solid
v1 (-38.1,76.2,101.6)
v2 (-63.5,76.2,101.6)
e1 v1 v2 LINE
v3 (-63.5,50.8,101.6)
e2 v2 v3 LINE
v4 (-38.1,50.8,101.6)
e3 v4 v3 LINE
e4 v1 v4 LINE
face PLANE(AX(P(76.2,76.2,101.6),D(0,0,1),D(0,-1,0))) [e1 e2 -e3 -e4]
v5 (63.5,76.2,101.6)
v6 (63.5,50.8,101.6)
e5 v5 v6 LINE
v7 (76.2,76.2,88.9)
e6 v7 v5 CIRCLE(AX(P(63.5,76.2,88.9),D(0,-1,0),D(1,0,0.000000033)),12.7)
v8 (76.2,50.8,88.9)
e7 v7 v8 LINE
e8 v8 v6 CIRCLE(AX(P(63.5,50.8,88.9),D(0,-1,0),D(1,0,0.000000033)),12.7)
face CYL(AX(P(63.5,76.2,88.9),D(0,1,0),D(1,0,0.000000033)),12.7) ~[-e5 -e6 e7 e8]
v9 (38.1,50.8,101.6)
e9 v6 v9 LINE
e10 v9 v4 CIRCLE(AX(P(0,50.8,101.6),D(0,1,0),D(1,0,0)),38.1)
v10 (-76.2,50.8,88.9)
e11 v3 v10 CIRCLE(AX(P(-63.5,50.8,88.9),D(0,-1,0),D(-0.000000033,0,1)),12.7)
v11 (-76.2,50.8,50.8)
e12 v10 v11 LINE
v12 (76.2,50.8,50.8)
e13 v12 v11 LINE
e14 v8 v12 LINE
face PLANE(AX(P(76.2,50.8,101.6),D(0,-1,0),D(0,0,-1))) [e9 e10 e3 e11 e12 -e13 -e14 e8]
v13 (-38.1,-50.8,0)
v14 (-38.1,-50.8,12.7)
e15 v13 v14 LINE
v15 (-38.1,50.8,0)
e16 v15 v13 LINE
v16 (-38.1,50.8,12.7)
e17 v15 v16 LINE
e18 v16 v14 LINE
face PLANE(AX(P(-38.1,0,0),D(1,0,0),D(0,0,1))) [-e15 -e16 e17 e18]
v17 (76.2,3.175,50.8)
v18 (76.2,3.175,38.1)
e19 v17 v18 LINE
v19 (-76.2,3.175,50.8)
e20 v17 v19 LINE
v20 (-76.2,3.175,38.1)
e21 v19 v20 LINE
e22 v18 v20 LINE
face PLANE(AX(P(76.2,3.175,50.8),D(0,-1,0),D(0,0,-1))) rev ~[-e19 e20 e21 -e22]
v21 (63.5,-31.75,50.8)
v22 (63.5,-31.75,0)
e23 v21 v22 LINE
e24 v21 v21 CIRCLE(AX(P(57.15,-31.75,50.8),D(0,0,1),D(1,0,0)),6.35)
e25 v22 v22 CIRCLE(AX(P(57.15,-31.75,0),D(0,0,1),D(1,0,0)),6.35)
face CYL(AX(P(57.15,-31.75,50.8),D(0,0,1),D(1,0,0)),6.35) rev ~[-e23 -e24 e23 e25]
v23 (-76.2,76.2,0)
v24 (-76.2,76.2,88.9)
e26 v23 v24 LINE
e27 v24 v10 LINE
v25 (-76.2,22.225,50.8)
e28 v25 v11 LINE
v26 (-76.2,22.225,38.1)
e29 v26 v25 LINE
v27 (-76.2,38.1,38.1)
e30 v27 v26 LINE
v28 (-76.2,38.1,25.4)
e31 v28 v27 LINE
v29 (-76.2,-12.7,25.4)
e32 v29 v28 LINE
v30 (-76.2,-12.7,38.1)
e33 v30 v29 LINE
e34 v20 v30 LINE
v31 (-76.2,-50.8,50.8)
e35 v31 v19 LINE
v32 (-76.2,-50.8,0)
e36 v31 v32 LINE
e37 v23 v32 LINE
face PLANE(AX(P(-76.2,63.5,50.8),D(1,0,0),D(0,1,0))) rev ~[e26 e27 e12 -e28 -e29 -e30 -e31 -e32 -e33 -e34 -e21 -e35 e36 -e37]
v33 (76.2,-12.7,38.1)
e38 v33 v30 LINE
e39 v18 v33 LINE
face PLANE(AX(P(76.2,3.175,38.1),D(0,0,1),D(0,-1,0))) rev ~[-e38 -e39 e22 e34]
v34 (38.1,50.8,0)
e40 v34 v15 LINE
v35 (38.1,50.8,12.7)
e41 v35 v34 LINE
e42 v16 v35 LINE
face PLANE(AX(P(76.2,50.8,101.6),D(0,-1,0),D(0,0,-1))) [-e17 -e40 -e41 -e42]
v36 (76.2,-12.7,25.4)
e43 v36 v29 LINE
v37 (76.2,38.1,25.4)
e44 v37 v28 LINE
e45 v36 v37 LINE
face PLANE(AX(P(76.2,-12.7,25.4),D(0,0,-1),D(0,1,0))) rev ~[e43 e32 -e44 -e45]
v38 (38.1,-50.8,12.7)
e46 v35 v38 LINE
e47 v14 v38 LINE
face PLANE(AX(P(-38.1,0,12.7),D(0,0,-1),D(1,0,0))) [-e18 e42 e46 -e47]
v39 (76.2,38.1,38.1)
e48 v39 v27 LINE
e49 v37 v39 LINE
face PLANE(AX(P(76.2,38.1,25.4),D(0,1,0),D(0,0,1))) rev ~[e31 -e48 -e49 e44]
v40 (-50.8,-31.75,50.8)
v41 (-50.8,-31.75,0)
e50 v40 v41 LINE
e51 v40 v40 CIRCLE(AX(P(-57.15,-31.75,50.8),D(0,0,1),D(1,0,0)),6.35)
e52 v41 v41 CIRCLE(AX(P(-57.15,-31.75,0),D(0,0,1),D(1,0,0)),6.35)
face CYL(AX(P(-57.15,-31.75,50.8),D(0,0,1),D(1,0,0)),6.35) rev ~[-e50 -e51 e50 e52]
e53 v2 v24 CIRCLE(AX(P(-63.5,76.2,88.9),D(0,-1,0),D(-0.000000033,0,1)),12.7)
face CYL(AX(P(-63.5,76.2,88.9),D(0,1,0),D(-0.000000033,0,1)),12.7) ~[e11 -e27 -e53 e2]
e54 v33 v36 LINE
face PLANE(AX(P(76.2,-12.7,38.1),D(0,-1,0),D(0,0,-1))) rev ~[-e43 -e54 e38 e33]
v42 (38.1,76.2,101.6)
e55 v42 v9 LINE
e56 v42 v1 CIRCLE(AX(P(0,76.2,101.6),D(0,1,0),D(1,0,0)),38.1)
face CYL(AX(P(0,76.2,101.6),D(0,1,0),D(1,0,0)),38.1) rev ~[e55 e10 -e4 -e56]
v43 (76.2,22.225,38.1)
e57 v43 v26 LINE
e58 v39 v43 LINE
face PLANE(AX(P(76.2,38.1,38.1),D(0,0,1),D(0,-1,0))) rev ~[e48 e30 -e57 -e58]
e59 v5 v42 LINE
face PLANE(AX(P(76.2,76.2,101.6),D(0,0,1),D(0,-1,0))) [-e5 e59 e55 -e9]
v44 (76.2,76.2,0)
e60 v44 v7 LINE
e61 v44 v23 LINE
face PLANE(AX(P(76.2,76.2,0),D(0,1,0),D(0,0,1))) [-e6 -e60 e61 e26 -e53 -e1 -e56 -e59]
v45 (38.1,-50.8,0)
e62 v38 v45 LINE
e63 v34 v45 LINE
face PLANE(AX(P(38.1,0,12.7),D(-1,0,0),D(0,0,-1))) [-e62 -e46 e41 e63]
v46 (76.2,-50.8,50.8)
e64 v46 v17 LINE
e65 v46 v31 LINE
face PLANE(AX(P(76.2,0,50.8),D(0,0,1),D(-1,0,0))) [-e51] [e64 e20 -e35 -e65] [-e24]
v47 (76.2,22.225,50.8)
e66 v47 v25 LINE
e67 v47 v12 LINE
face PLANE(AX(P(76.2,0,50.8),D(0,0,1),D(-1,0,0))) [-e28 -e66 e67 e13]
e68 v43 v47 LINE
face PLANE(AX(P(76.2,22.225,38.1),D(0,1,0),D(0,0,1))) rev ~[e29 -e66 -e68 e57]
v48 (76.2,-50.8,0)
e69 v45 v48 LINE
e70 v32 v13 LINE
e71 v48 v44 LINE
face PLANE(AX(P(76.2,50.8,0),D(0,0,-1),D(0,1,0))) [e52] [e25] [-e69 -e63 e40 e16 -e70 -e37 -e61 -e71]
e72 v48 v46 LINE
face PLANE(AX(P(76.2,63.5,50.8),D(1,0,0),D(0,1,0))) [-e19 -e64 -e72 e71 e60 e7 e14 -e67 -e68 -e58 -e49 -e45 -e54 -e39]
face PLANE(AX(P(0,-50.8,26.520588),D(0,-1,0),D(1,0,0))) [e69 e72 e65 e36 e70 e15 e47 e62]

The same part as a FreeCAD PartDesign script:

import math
import FreeCAD as App
import Part
import Sketcher
from FreeCAD import Vector
Q = App.Units.Quantity

doc = App.newDocument("Part")
params = doc.addObject("Spreadsheet::Sheet", "Params")
for row, (alias, value) in enumerate([
    ("sketch1_width", "3 in"),
    ("sketch1_width2", "6 in"),
    ("sketch1_height", "2 in"),
    ("sketch1_height2", "0.5 in"),
    ("pad1_length", "4 in"),
    ("sketch2_diameter", "0.5 in"),
    ("pocket1_length", "2 in"),
    ("sketch3_width", "2 in"),
    ("sketch3_height", "0.5 in"),
    ("sketch3_width2", "0.75 in"),
    ("pocket2_length", "6 in"),
    ("sketch4_width", "1 in"),
    ("sketch4_height", "4 in"),
    ("pad2_length", "6 in"),
    ("sketch5_radius", "1.5 in"),
    ("pocket3_length", "1 in"),
    ("sketch6_radius", "0.5 in"),
    ("pocket4_length", "1 in"),
    ("sketch7_radius", "0.5 in"),
    ("pocket5_length", "1 in"),
], start=1):
    params.set(f"A{row}", alias)
    params.set(f"B{row}", "=" + value)
    params.setAlias(f"B{row}", alias)

body = doc.addObject("PartDesign::Body", "Body")

# Sketch on XZ plane
sketch1 = body.newObject("Sketcher::SketchObject", "Sketch")
sketch1.AttachmentSupport = (doc.getObject("XZ_Plane"), [""])
sketch1.MapMode = "FlatFace"
sketch1.addGeometry([
    Part.LineSegment(Vector(-76.2, 50.8, 0), Vector(-76.2, 0, 0)),  # 0
    Part.LineSegment(Vector(-76.2, 0, 0), Vector(-38.1, 0, 0)),  # 1
    Part.LineSegment(Vector(-38.1, 0, 0), Vector(-38.1, 12.7, 0)),  # 2
    Part.LineSegment(Vector(-38.1, 12.7, 0), Vector(38.1, 12.7, 0)),  # 3
    Part.LineSegment(Vector(38.1, 12.7, 0), Vector(38.1, 0, 0)),  # 4
    Part.LineSegment(Vector(38.1, 0, 0), Vector(76.2, 0, 0)),  # 5
    Part.LineSegment(Vector(76.2, 0, 0), Vector(76.2, 50.8, 0)),  # 6
    Part.LineSegment(Vector(76.2, 50.8, 0), Vector(-76.2, 50.8, 0)),  # 7
], False)
sketch1.addConstraint([
    Sketcher.Constraint("Coincident", 0, 2, 1, 1),
    Sketcher.Constraint("Coincident", 1, 2, 2, 1),
    Sketcher.Constraint("Coincident", 2, 2, 3, 1),
    Sketcher.Constraint("Coincident", 3, 2, 4, 1),
    Sketcher.Constraint("Coincident", 4, 2, 5, 1),
    Sketcher.Constraint("Coincident", 5, 2, 6, 1),
    Sketcher.Constraint("Coincident", 6, 2, 7, 1),
    Sketcher.Constraint("Coincident", 7, 2, 0, 1),
    Sketcher.Constraint("Vertical", 0),
    Sketcher.Constraint("Horizontal", 1),
    Sketcher.Constraint("Vertical", 2),
    Sketcher.Constraint("Horizontal", 3),
    Sketcher.Constraint("Vertical", 4),
    Sketcher.Constraint("Horizontal", 5),
    Sketcher.Constraint("Vertical", 6),
    Sketcher.Constraint("Horizontal", 7),
    Sketcher.Constraint("Symmetric", 1, 2, 4, 2, -1, 1),
    Sketcher.Constraint("Symmetric", 0, 2, 5, 2, -2),
    Sketcher.Constraint("DistanceX", 3, 1, 3, 2, Q("3 in")),
    Sketcher.Constraint("DistanceX", 7, 2, 7, 1, Q("6 in")),
    Sketcher.Constraint("DistanceY", 0, 2, 0, 1, Q("2 in")),
    Sketcher.Constraint("DistanceY", 2, 1, 2, 2, Q("0.5 in")),
])
sketch1.setExpression("Constraints[18]", "Params.sketch1_width")
sketch1.setExpression("Constraints[19]", "Params.sketch1_width2")
sketch1.setExpression("Constraints[20]", "Params.sketch1_height")
sketch1.setExpression("Constraints[21]", "Params.sketch1_height2")
pad1 = body.newObject("PartDesign::Pad", "Pad")
pad1.Profile = sketch1
pad1.setExpression("Length", "Params.pad1_length")
pad1.Midplane = True

# Sketch on XY plane
sketch2 = body.newObject("Sketcher::SketchObject", "Sketch001")
sketch2.AttachmentSupport = (doc.getObject("XY_Plane"), [""])
sketch2.MapMode = "FlatFace"
sketch2.AttachmentOffset = App.Placement(Vector(0, 0, 2 * 25.4), App.Rotation())
sketch2.addGeometry([
    Part.Circle(Vector(-57.15, -31.75, 0), Vector(0, 0, 1), 6.35),
    Part.Circle(Vector(57.15, -31.75, 0), Vector(0, 0, 1), 6.35),
], False)
sketch2.addConstraint([
    Sketcher.Constraint("Equal", 0, 1),
    Sketcher.Constraint("Symmetric", 0, 3, 1, 3, -2),
    Sketcher.Constraint("Diameter", 0, Q("0.5 in")),
    Sketcher.Constraint("DistanceX", 0, 3, 1, 3, Q("4.5 in")),
    Sketcher.Constraint("DistanceY", 0, 3, -1, 1, Q("1.25 in")),
])
sketch2.setExpression("Constraints[2]", "Params.sketch2_diameter")
pocket1 = body.newObject("PartDesign::Pocket", "Pocket")
pocket1.Profile = sketch2
pocket1.setExpression("Length", "Params.pocket1_length")

# Sketch on YZ plane
sketch3 = body.newObject("Sketcher::SketchObject", "Sketch002")
sketch3.AttachmentSupport = (doc.getObject("YZ_Plane"), [""])
sketch3.MapMode = "FlatFace"
sketch3.AttachmentOffset = App.Placement(Vector(0, 0, 3 * 25.4), App.Rotation())
sketch3.addGeometry([
    Part.LineSegment(Vector(-12.7, 38.1, 0), Vector(-12.7, 25.4, 0)),  # 0
    Part.LineSegment(Vector(-12.7, 25.4, 0), Vector(38.1, 25.4, 0)),  # 1
    Part.LineSegment(Vector(38.1, 25.4, 0), Vector(38.1, 38.1, 0)),  # 2
    Part.LineSegment(Vector(38.1, 38.1, 0), Vector(22.225, 38.1, 0)),  # 3
    Part.LineSegment(Vector(22.225, 38.1, 0), Vector(22.225, 50.8, 0)),  # 4
    Part.LineSegment(Vector(22.225, 50.8, 0), Vector(3.175, 50.8, 0)),  # 5
    Part.LineSegment(Vector(3.175, 50.8, 0), Vector(3.175, 38.1, 0)),  # 6
    Part.LineSegment(Vector(3.175, 38.1, 0), Vector(-12.7, 38.1, 0)),  # 7
], False)
sketch3.addConstraint([
    Sketcher.Constraint("Coincident", 0, 2, 1, 1),
    Sketcher.Constraint("Coincident", 1, 2, 2, 1),
    Sketcher.Constraint("Coincident", 2, 2, 3, 1),
    Sketcher.Constraint("Coincident", 3, 2, 4, 1),
    Sketcher.Constraint("Coincident", 4, 2, 5, 1),
    Sketcher.Constraint("Coincident", 5, 2, 6, 1),
    Sketcher.Constraint("Coincident", 6, 2, 7, 1),
    Sketcher.Constraint("Coincident", 7, 2, 0, 1),
    Sketcher.Constraint("Vertical", 0),
    Sketcher.Constraint("Horizontal", 1),
    Sketcher.Constraint("Vertical", 2),
    Sketcher.Constraint("Horizontal", 3),
    Sketcher.Constraint("Vertical", 4),
    Sketcher.Constraint("Horizontal", 5),
    Sketcher.Constraint("Vertical", 6),
    Sketcher.Constraint("Horizontal", 7),
    Sketcher.Constraint("Horizontal", 3, 2, 6, 2),
    Sketcher.Constraint("Equal", 3, 7),
    Sketcher.Constraint("Equal", 2, 4),
    Sketcher.Constraint("DistanceX", 1, 1, 1, 2, Q("2 in")),
    Sketcher.Constraint("DistanceY", 0, 2, 0, 1, Q("0.5 in")),
    Sketcher.Constraint("DistanceY", -1, 1, 0, 2, Q("1 in")),
    Sketcher.Constraint("DistanceX", 5, 2, 5, 1, Q("0.75 in")),
    Sketcher.Constraint("DistanceX", 0, 2, -1, 1, Q("0.5 in")),
])
sketch3.setExpression("Constraints[19]", "Params.sketch3_width")
sketch3.setExpression("Constraints[20]", "Params.sketch3_height")
sketch3.setExpression("Constraints[22]", "Params.sketch3_width2")
pocket2 = body.newObject("PartDesign::Pocket", "Pocket001")
pocket2.Profile = sketch3
pocket2.setExpression("Length", "Params.pocket2_length")

# Sketch on YZ plane
sketch4 = body.newObject("Sketcher::SketchObject", "Sketch003")
sketch4.AttachmentSupport = (doc.getObject("YZ_Plane"), [""])
sketch4.MapMode = "FlatFace"
sketch4.AttachmentOffset = App.Placement(Vector(0, 0, 3 * 25.4), App.Rotation())
sketch4.addGeometry([
    Part.LineSegment(Vector(50.8, 101.6, 0), Vector(50.8, 0, 0)),
    Part.LineSegment(Vector(50.8, 0, 0), Vector(76.2, 0, 0)),
    Part.LineSegment(Vector(76.2, 0, 0), Vector(76.2, 101.6, 0)),
    Part.LineSegment(Vector(76.2, 101.6, 0), Vector(50.8, 101.6, 0)),
], False)
sketch4.addConstraint([
    Sketcher.Constraint("Coincident", 0, 2, 1, 1),
    Sketcher.Constraint("Coincident", 1, 2, 2, 1),
    Sketcher.Constraint("Coincident", 2, 2, 3, 1),
    Sketcher.Constraint("Coincident", 3, 2, 0, 1),
    Sketcher.Constraint("Vertical", 0),
    Sketcher.Constraint("Horizontal", 1),
    Sketcher.Constraint("Vertical", 2),
    Sketcher.Constraint("Horizontal", 3),
    Sketcher.Constraint("PointOnObject", 0, 2, -1),
    Sketcher.Constraint("DistanceX", 1, 1, 1, 2, Q("1 in")),
    Sketcher.Constraint("DistanceY", 0, 2, 0, 1, Q("4 in")),
    Sketcher.Constraint("DistanceX", -1, 1, 0, 2, Q("2 in")),
])
sketch4.setExpression("Constraints[9]", "Params.sketch4_width")
sketch4.setExpression("Constraints[10]", "Params.sketch4_height")
pad2 = body.newObject("PartDesign::Pad", "Pad001")
pad2.Profile = sketch4
pad2.setExpression("Length", "Params.pad2_length")
pad2.Reversed = True

# Sketch on XZ plane
sketch5 = body.newObject("Sketcher::SketchObject", "Sketch004")
sketch5.AttachmentSupport = (doc.getObject("XZ_Plane"), [""])
sketch5.MapMode = "FlatFace"
sketch5.AttachmentOffset = App.Placement(Vector(0, 0, -3 * 25.4), App.Rotation())
sketch5.addGeometry([
    Part.LineSegment(Vector(-38.1, 101.6, 0), Vector(38.1, 101.6, 0)),
    Part.ArcOfCircle(Part.Circle(Vector(0, 101.6, 0), Vector(0, 0, 1), 38.1), math.radians(180), math.radians(360)),
], False)
sketch5.addConstraint([
    Sketcher.Constraint("Coincident", 0, 1, 1, 1),
    Sketcher.Constraint("Coincident", 1, 2, 0, 2),
    Sketcher.Constraint("Horizontal", 0),
    Sketcher.Constraint("PointOnObject", 1, 3, -2),
    Sketcher.Constraint("Horizontal", 1, 3, 0, 1),
    Sketcher.Constraint("Radius", 1, Q("1.5 in")),
    Sketcher.Constraint("DistanceY", -1, 1, 1, 3, Q("4 in")),
])
sketch5.setExpression("Constraints[5]", "Params.sketch5_radius")
pocket3 = body.newObject("PartDesign::Pocket", "Pocket002")
pocket3.Profile = sketch5
pocket3.setExpression("Length", "Params.pocket3_length")
pocket3.Reversed = True

# Sketch on XZ plane
sketch6 = body.newObject("Sketcher::SketchObject", "Sketch005")
sketch6.AttachmentSupport = (doc.getObject("XZ_Plane"), [""])
sketch6.MapMode = "FlatFace"
sketch6.AttachmentOffset = App.Placement(Vector(0, 0, -3 * 25.4), App.Rotation())
sketch6.addGeometry([
    Part.ArcOfCircle(Part.Circle(Vector(-63.5, 88.9, 0), Vector(0, 0, 1), 12.7), math.radians(90.000002), math.radians(179.999998)),
    Part.LineSegment(Vector(-76.2, 88.9, 0), Vector(-76.2, 101.6, 0)),
    Part.LineSegment(Vector(-76.2, 101.6, 0), Vector(-63.5, 101.6, 0)),
], False)
sketch6.addConstraint([
    Sketcher.Constraint("Tangent", 0, 2, 1, 1),
    Sketcher.Constraint("Coincident", 1, 2, 2, 1),
    Sketcher.Constraint("Tangent", 2, 2, 0, 1),
    Sketcher.Constraint("Vertical", 1),
    Sketcher.Constraint("Horizontal", 2),
    Sketcher.Constraint("Radius", 0, Q("0.5 in")),
    Sketcher.Constraint("DistanceX", 0, 2, -1, 1, Q("3 in")),
    Sketcher.Constraint("DistanceY", -1, 1, 1, 2, Q("4 in")),
])
sketch6.setExpression("Constraints[5]", "Params.sketch6_radius")
pocket4 = body.newObject("PartDesign::Pocket", "Pocket003")
pocket4.Profile = sketch6
pocket4.setExpression("Length", "Params.pocket4_length")
pocket4.Reversed = True

# Sketch on XZ plane
sketch7 = body.newObject("Sketcher::SketchObject", "Sketch006")
sketch7.AttachmentSupport = (doc.getObject("XZ_Plane"), [""])
sketch7.MapMode = "FlatFace"
sketch7.AttachmentOffset = App.Placement(Vector(0, 0, -3 * 25.4), App.Rotation())
sketch7.addGeometry([
    Part.ArcOfCircle(Part.Circle(Vector(63.5, 88.9, 0), Vector(0, 0, 1), 12.7), math.radians(0.000002), math.radians(89.999998)),
    Part.LineSegment(Vector(63.5, 101.6, 0), Vector(76.2, 101.6, 0)),
    Part.LineSegment(Vector(76.2, 101.6, 0), Vector(76.2, 88.9, 0)),
], False)
sketch7.addConstraint([
    Sketcher.Constraint("Tangent", 0, 2, 1, 1),
    Sketcher.Constraint("Coincident", 1, 2, 2, 1),
    Sketcher.Constraint("Tangent", 2, 2, 0, 1),
    Sketcher.Constraint("Horizontal", 1),
    Sketcher.Constraint("Vertical", 2),
    Sketcher.Constraint("Radius", 0, Q("0.5 in")),
    Sketcher.Constraint("DistanceY", -1, 1, 0, 2, Q("4 in")),
    Sketcher.Constraint("DistanceX", -1, 1, 1, 2, Q("3 in")),
])
sketch7.setExpression("Constraints[5]", "Params.sketch7_radius")
pocket5 = body.newObject("PartDesign::Pocket", "Pocket004")
pocket5.Profile = sketch7
pocket5.setExpression("Length", "Params.pocket5_length")
pocket5.Reversed = True

doc.recompute()
